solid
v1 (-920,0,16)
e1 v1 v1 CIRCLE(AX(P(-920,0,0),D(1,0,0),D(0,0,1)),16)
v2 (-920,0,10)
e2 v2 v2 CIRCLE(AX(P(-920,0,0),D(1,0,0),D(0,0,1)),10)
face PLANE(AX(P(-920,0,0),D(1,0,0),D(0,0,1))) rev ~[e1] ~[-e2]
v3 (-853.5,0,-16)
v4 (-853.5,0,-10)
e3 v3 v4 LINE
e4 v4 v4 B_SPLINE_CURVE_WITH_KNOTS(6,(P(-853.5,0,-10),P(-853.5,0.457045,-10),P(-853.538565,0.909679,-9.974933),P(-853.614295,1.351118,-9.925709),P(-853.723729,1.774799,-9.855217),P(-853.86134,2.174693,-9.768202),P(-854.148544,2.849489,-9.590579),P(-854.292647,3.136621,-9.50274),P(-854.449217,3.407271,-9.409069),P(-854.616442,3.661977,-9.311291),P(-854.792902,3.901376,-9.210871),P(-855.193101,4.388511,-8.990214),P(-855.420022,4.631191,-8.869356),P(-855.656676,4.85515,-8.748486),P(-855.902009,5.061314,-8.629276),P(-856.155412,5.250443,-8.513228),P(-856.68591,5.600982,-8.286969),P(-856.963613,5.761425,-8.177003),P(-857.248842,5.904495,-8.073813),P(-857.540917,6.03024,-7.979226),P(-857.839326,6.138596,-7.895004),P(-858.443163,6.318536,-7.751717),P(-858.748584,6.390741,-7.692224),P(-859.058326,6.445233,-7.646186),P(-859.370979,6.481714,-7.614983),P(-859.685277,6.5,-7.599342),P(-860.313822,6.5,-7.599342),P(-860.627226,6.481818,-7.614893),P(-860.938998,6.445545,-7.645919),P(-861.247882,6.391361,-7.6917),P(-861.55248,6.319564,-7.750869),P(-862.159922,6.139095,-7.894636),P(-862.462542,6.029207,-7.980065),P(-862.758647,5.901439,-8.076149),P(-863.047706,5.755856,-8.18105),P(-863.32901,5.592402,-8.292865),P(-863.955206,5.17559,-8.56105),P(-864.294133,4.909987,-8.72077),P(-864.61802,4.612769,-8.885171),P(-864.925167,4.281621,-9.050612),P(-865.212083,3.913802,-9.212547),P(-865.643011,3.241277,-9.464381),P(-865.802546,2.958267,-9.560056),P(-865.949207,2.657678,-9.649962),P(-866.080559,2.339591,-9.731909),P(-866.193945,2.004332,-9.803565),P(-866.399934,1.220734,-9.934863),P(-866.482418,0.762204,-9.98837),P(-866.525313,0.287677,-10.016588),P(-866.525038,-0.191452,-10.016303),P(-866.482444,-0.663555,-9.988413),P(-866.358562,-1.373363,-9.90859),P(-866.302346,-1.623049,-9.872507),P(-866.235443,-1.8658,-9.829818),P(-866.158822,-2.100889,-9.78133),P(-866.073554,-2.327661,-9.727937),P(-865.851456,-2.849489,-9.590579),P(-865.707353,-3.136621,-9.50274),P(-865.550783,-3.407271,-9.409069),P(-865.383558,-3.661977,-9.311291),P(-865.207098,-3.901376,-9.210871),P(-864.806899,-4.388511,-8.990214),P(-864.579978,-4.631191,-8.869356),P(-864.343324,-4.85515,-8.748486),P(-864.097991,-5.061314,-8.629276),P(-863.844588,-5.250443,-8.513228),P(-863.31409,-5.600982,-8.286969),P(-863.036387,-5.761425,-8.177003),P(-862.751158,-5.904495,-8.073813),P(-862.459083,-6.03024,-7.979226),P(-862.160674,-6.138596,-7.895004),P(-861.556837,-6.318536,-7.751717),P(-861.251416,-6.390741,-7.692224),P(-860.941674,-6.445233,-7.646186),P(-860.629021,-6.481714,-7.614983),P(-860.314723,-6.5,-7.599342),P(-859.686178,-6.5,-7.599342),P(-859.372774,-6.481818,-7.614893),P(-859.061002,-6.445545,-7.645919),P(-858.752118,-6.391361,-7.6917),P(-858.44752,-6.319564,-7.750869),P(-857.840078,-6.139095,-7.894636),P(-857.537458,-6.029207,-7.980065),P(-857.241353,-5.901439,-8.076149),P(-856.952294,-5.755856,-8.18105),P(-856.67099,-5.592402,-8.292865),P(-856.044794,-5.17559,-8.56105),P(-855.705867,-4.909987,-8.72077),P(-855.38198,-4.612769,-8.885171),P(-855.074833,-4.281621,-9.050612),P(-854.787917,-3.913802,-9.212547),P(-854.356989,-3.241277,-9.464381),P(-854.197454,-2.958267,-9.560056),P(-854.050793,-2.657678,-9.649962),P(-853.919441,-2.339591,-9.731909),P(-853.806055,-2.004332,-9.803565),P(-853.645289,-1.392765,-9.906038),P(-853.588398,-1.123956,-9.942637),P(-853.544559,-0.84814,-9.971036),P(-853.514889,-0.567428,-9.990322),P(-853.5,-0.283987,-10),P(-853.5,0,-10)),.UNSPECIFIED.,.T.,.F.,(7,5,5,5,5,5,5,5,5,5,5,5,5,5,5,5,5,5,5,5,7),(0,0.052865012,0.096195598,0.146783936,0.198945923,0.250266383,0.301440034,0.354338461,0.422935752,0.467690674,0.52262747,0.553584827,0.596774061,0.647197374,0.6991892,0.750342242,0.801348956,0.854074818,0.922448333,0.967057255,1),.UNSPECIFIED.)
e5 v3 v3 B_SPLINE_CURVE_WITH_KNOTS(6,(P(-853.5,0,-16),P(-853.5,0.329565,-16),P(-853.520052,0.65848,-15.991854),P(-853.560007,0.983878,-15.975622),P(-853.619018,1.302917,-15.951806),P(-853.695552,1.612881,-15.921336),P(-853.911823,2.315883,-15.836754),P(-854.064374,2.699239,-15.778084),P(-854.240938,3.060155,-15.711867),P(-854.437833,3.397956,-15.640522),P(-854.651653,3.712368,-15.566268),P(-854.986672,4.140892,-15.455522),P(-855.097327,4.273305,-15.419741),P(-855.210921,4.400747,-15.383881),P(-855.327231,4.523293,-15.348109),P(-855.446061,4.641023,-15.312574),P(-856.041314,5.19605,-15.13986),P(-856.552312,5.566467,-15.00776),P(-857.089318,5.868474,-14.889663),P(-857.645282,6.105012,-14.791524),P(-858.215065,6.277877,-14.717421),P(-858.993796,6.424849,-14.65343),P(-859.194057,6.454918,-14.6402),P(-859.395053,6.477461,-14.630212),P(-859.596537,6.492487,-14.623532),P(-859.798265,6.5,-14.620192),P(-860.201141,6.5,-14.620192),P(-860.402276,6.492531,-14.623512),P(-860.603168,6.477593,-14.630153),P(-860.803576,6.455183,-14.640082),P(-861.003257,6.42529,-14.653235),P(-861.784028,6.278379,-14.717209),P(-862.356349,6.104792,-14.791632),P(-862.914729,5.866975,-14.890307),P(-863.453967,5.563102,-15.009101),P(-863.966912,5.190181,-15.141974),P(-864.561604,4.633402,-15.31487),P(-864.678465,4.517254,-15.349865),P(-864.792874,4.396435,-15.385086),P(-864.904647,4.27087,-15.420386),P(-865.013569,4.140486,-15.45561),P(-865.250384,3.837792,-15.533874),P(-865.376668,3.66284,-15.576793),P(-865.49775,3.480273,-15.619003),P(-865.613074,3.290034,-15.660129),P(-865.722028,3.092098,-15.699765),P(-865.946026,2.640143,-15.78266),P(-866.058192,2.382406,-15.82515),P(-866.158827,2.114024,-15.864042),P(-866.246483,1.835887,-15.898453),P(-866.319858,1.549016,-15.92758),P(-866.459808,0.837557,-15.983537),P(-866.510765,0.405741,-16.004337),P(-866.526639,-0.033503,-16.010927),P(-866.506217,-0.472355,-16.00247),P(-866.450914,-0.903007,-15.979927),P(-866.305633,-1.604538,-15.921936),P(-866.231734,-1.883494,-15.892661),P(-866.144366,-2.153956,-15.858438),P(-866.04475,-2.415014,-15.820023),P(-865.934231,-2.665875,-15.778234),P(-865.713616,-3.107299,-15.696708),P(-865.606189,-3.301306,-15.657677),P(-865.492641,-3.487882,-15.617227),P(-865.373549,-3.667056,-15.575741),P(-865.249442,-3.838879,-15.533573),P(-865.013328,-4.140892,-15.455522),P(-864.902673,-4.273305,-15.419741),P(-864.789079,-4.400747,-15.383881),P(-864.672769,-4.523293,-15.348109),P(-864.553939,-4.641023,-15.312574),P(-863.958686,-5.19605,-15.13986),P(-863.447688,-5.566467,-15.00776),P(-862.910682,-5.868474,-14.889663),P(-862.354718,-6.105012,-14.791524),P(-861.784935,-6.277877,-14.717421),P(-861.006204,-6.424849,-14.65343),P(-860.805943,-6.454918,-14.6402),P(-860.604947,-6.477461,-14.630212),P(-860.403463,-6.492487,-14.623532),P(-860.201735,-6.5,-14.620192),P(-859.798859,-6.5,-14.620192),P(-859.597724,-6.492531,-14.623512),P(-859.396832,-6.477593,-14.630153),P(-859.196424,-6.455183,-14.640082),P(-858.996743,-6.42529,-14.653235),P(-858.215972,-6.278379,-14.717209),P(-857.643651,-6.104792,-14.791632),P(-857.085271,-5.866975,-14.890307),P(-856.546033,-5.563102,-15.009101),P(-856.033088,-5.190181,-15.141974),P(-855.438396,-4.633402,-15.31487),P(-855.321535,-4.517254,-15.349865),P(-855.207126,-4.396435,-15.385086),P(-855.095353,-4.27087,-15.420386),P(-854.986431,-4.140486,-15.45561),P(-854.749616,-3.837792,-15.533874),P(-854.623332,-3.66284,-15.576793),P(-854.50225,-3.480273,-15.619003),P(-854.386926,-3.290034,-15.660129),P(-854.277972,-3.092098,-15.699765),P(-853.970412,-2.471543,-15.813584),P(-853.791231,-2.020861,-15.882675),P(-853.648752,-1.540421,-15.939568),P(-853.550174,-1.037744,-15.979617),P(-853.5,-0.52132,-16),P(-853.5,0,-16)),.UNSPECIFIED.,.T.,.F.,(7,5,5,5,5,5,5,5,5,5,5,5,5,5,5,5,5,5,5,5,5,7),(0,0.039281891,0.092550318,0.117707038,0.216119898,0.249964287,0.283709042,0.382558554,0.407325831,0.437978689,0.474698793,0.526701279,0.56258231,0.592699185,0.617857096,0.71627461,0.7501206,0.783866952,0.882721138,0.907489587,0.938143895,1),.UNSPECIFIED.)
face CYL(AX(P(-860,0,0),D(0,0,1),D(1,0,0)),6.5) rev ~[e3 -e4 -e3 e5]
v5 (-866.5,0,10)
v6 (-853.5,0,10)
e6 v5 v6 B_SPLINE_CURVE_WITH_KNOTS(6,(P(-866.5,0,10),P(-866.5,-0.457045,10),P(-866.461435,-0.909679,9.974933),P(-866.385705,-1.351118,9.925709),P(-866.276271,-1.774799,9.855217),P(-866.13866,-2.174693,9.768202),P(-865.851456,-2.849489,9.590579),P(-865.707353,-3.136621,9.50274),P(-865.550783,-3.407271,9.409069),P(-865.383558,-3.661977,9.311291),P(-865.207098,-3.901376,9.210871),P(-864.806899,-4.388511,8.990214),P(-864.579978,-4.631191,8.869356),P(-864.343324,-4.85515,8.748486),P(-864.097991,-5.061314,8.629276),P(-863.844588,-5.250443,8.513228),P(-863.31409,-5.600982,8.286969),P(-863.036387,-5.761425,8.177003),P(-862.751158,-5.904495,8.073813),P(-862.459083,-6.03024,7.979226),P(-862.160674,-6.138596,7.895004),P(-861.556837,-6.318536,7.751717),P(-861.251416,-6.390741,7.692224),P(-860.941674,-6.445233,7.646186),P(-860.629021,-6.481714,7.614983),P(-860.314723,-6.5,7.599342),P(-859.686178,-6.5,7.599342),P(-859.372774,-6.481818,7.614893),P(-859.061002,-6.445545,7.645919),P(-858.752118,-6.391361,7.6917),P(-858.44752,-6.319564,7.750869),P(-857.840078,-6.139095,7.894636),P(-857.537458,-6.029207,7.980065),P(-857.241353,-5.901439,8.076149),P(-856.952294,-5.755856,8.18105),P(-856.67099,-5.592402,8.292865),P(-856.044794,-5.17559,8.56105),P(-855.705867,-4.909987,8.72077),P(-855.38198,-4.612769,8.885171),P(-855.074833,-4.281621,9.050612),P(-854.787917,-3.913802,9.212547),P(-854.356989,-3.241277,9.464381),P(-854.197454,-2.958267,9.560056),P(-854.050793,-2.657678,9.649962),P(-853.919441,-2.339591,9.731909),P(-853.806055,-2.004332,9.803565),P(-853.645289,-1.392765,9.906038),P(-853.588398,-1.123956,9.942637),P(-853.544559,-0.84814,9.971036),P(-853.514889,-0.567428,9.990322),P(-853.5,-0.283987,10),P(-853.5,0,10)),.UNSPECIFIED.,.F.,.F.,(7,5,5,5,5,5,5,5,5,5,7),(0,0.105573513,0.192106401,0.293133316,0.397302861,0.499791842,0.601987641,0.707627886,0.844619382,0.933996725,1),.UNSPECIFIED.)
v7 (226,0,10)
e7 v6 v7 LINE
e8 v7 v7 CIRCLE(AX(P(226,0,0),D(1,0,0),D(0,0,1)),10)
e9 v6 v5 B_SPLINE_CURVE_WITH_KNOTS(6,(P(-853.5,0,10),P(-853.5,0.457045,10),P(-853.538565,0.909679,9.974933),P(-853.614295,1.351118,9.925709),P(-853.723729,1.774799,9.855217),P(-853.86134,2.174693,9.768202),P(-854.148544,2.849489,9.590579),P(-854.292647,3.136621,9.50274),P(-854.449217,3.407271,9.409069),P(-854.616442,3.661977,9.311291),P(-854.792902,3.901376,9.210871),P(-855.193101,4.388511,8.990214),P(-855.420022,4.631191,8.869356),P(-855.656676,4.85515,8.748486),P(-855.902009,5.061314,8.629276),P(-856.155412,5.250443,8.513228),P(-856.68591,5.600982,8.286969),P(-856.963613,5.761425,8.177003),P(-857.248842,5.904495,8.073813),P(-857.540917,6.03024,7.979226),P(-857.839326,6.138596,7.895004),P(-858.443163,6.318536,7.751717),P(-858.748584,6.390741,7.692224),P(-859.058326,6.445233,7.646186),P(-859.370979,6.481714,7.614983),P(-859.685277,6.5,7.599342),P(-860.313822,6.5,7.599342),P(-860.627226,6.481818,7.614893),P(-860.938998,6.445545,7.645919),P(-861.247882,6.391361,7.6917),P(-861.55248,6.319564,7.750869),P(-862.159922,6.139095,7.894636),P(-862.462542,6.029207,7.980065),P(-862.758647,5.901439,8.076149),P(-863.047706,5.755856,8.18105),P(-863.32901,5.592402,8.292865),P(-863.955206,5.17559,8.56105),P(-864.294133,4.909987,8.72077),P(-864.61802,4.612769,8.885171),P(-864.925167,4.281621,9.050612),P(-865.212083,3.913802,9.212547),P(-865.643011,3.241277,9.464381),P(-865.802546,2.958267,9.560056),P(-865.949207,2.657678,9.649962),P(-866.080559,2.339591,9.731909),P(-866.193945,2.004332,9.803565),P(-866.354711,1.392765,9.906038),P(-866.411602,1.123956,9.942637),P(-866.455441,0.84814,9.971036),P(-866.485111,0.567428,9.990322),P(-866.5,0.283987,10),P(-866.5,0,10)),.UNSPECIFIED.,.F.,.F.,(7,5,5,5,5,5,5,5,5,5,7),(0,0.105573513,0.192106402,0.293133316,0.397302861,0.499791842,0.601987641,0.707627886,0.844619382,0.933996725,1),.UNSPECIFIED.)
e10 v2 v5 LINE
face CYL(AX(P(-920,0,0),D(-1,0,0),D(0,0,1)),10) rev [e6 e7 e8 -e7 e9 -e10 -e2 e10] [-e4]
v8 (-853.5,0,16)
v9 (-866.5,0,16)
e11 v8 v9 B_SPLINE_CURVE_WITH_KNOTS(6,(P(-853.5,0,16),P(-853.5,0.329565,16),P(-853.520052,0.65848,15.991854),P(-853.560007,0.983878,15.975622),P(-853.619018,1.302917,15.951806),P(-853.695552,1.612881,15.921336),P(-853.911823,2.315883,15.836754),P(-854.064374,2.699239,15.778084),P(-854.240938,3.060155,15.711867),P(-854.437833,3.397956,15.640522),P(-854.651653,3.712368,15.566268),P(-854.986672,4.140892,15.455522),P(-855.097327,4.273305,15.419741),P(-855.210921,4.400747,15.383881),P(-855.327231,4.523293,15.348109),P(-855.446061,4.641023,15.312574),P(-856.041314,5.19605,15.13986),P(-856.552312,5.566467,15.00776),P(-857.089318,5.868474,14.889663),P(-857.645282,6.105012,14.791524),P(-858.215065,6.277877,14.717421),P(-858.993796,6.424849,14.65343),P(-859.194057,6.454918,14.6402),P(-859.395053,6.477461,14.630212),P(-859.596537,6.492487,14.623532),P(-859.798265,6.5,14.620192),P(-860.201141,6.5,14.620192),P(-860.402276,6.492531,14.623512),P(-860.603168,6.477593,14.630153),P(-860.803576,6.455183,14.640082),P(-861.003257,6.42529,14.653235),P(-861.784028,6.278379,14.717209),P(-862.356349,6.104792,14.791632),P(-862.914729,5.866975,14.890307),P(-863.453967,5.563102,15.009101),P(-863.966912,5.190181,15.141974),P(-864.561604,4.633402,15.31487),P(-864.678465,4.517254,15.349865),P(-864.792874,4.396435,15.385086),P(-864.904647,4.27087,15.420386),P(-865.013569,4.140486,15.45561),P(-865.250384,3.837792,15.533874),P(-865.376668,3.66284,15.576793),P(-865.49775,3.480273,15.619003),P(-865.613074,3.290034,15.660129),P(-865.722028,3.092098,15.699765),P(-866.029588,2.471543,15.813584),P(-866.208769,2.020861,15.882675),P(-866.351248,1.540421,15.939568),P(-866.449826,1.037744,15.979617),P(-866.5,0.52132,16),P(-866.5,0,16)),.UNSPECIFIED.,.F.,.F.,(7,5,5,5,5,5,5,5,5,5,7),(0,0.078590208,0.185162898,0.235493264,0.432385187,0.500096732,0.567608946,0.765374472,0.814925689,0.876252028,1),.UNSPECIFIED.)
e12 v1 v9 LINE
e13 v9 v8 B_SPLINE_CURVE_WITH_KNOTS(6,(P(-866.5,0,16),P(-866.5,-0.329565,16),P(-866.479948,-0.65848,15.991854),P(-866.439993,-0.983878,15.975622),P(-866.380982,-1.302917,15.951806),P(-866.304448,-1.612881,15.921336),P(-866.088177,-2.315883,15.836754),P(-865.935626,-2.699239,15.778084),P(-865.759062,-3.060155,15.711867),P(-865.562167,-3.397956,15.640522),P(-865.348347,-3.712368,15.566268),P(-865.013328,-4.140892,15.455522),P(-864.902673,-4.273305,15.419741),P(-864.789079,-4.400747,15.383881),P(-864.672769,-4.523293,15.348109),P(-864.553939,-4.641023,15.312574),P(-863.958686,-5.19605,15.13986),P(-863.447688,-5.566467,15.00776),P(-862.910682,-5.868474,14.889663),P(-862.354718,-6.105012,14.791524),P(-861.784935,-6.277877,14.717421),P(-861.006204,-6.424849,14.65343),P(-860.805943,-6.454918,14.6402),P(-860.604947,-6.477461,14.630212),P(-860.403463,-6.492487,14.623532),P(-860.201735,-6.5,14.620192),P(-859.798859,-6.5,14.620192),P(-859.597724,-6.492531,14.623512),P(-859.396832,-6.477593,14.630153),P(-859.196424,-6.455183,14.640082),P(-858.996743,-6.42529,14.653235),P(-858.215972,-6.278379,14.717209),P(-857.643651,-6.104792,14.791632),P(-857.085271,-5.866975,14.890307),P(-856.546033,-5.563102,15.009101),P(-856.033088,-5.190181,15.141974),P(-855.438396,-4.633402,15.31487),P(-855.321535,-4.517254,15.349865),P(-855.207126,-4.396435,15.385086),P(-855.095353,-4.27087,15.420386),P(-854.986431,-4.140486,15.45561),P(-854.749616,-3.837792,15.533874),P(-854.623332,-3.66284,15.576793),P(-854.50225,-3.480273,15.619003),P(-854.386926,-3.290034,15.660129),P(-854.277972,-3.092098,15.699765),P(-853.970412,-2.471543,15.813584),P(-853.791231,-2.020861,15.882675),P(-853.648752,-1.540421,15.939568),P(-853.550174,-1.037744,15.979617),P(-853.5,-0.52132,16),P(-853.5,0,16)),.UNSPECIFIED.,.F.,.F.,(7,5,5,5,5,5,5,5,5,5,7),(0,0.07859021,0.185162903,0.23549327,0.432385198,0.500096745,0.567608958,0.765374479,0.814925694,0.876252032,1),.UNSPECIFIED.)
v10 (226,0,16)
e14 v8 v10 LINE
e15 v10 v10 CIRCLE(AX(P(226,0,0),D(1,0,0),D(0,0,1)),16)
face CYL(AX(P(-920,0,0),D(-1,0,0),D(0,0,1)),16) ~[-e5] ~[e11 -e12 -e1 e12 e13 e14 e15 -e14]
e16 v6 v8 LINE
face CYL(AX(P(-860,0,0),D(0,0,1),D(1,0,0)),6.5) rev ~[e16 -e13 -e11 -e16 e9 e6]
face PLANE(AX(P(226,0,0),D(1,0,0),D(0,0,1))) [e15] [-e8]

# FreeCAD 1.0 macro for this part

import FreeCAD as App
import Part
import Sketcher
Q = App.Units.Quantity

doc = App.newDocument("Part")
params = doc.addObject("Spreadsheet::Sheet", "Params")
for row, (alias, value) in enumerate([
    ("sketch1_diameter", "32 mm"),
    ("sketch1_diameter2", "20 mm"),
    ("pad1_length", "226 mm"),
    ("pad1_length2", "920 mm"),
    ("sketch2_diameter", "13 mm"),
    ("pocket1_length", "59 mm"),
], start=1):
    params.set(f"A{row}", alias)
    params.set(f"B{row}", "=" + value)
    params.setAlias(f"B{row}", alias)

body = doc.addObject("PartDesign::Body", "Body")

# Sketch on YZ plane
sketch1 = doc.addObject("Sketcher::SketchObject", "Sketch")
body.addObject(sketch1)
sketch1.AttachmentSupport = (doc.YZ_Plane, [""])
sketch1.MapMode = "FlatFace"
sketch1.addGeometry([
    Part.Circle(App.Vector(0, 0, 0), App.Vector(0, 0, 1), 16),
    Part.Circle(App.Vector(0, 0, 0), App.Vector(0, 0, 1), 10),
], False)
sketch1.addConstraint([
    Sketcher.Constraint("Coincident", 0, 3, -1, 1),
    Sketcher.Constraint("Coincident", 1, 3, -1, 1),
    Sketcher.Constraint("Diameter", 0, Q("32 mm")),
    Sketcher.Constraint("Diameter", 1, Q("20 mm")),
])
sketch1.setExpression("Constraints[2]", "Params.sketch1_diameter")
sketch1.setExpression("Constraints[3]", "Params.sketch1_diameter2")
pad1 = doc.addObject("PartDesign::Pad", "Pad")
body.addObject(pad1)
pad1.Profile = sketch1
pad1.Type = "TwoLengths"
pad1.setExpression("Length", "Params.pad1_length")
pad1.setExpression("Length2", "Params.pad1_length2")

# Sketch on XY plane
sketch2 = doc.addObject("Sketcher::SketchObject", "Sketch001")
body.addObject(sketch2)
sketch2.AttachmentSupport = (doc.XY_Plane, [""])
sketch2.MapMode = "FlatFace"
sketch2.addGeometry(Part.Circle(App.Vector(-860, 0, 0), App.Vector(0, 0, 1), 6.5), False)
sketch2.addConstraint([
    Sketcher.Constraint("PointOnObject", 0, 3, -1),
    Sketcher.Constraint("Diameter", 0, Q("13 mm")),
    Sketcher.Constraint("DistanceX", 0, 3, -1, 1, Q("860 mm")),
])
sketch2.setExpression("Constraints[1]", "Params.sketch2_diameter")
pocket1 = doc.addObject("PartDesign::Pocket", "Pocket")
body.addObject(pocket1)
pocket1.Profile = sketch2
pocket1.setExpression("Length", "Params.pocket1_length")
pocket1.Midplane = True

doc.recompute()
